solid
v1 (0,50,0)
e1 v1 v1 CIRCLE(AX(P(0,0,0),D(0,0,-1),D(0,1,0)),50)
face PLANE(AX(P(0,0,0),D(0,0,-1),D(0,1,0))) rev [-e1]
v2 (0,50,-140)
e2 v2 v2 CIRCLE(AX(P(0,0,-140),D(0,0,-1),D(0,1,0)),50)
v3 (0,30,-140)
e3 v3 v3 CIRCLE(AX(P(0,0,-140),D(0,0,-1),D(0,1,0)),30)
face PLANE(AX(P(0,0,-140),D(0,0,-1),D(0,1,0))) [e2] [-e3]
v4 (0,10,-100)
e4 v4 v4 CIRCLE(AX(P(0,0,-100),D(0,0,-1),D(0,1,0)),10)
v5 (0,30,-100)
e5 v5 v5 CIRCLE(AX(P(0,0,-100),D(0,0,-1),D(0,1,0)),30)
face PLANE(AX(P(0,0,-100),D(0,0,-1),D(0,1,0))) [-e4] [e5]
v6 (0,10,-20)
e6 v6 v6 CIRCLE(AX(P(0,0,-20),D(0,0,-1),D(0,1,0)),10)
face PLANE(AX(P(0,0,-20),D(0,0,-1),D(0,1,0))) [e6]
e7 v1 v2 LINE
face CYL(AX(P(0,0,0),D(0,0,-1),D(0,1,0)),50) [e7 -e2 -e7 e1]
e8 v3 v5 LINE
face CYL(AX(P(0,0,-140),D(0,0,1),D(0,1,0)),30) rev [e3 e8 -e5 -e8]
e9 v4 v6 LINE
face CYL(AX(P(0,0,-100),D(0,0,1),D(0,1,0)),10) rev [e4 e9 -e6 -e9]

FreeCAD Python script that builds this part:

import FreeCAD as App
import Part
import Sketcher
from FreeCAD import Vector
Q = App.Units.Quantity


def add_polygon(sketch, points):
    """Adds a closed chain of lines whose ends are joined by coincident constraints."""
    first, n = sketch.GeometryCount, len(points)
    for a, b in zip(points, points[1:] + points[:1]):
        sketch.addGeometry(Part.LineSegment(App.Vector(*a, 0), App.Vector(*b, 0)), False)
    for i in range(n):
        sketch.addConstraint(Sketcher.Constraint("Coincident", first + i, 2, first + (i + 1) % n, 1))

doc = App.newDocument("Part")
body = doc.addObject("PartDesign::Body", "Body")

sketch1 = body.newObject("Sketcher::SketchObject", "Sketch")
sketch1.AttachmentSupport = (doc.getObject("YZ_Plane"), [""])
sketch1.MapMode = "FlatFace"
add_polygon(sketch1, [(50, 0), (0, 0), (0, -20), (10, -20), (10, -100), (30, -100), (30, -140), (50, -140)])
sketch1.addConstraint(Sketcher.Constraint("Horizontal", 0))
sketch1.addConstraint(Sketcher.Constraint("Vertical", 1))
sketch1.addConstraint(Sketcher.Constraint("Horizontal", 2))
sketch1.addConstraint(Sketcher.Constraint("Vertical", 3))
sketch1.addConstraint(Sketcher.Constraint("Horizontal", 4))
sketch1.addConstraint(Sketcher.Constraint("Vertical", 5))
sketch1.addConstraint(Sketcher.Constraint("Horizontal", 6))
sketch1.addConstraint(Sketcher.Constraint("Vertical", 7))
sketch1.addConstraint(Sketcher.Constraint("Coincident", 0, 2, -1, 1))
sketch1.addConstraint(Sketcher.Constraint("Equal", 4, 6))
sketch1.addConstraint(Sketcher.Constraint("Equal", 6, 1))
sketch1.addConstraint(Sketcher.Constraint("DistanceX", 0, 2, 0, 1, Q("50 mm")))
sketch1.addConstraint(Sketcher.Constraint("DistanceX", 2, 1, 2, 2, Q("10 mm")))
sketch1.addConstraint(Sketcher.Constraint("DistanceY", 3, 2, 3, 1, Q("80 mm")))
sketch1.addConstraint(Sketcher.Constraint("DistanceY", 5, 2, 5, 1, Q("40 mm")))
revolution = body.newObject("PartDesign::Revolution", "Revolution")
revolution.Profile = sketch1
revolution.ReferenceAxis = (sketch1, ["V_Axis"])
revolution.Angle = 360

doc.recompute()
